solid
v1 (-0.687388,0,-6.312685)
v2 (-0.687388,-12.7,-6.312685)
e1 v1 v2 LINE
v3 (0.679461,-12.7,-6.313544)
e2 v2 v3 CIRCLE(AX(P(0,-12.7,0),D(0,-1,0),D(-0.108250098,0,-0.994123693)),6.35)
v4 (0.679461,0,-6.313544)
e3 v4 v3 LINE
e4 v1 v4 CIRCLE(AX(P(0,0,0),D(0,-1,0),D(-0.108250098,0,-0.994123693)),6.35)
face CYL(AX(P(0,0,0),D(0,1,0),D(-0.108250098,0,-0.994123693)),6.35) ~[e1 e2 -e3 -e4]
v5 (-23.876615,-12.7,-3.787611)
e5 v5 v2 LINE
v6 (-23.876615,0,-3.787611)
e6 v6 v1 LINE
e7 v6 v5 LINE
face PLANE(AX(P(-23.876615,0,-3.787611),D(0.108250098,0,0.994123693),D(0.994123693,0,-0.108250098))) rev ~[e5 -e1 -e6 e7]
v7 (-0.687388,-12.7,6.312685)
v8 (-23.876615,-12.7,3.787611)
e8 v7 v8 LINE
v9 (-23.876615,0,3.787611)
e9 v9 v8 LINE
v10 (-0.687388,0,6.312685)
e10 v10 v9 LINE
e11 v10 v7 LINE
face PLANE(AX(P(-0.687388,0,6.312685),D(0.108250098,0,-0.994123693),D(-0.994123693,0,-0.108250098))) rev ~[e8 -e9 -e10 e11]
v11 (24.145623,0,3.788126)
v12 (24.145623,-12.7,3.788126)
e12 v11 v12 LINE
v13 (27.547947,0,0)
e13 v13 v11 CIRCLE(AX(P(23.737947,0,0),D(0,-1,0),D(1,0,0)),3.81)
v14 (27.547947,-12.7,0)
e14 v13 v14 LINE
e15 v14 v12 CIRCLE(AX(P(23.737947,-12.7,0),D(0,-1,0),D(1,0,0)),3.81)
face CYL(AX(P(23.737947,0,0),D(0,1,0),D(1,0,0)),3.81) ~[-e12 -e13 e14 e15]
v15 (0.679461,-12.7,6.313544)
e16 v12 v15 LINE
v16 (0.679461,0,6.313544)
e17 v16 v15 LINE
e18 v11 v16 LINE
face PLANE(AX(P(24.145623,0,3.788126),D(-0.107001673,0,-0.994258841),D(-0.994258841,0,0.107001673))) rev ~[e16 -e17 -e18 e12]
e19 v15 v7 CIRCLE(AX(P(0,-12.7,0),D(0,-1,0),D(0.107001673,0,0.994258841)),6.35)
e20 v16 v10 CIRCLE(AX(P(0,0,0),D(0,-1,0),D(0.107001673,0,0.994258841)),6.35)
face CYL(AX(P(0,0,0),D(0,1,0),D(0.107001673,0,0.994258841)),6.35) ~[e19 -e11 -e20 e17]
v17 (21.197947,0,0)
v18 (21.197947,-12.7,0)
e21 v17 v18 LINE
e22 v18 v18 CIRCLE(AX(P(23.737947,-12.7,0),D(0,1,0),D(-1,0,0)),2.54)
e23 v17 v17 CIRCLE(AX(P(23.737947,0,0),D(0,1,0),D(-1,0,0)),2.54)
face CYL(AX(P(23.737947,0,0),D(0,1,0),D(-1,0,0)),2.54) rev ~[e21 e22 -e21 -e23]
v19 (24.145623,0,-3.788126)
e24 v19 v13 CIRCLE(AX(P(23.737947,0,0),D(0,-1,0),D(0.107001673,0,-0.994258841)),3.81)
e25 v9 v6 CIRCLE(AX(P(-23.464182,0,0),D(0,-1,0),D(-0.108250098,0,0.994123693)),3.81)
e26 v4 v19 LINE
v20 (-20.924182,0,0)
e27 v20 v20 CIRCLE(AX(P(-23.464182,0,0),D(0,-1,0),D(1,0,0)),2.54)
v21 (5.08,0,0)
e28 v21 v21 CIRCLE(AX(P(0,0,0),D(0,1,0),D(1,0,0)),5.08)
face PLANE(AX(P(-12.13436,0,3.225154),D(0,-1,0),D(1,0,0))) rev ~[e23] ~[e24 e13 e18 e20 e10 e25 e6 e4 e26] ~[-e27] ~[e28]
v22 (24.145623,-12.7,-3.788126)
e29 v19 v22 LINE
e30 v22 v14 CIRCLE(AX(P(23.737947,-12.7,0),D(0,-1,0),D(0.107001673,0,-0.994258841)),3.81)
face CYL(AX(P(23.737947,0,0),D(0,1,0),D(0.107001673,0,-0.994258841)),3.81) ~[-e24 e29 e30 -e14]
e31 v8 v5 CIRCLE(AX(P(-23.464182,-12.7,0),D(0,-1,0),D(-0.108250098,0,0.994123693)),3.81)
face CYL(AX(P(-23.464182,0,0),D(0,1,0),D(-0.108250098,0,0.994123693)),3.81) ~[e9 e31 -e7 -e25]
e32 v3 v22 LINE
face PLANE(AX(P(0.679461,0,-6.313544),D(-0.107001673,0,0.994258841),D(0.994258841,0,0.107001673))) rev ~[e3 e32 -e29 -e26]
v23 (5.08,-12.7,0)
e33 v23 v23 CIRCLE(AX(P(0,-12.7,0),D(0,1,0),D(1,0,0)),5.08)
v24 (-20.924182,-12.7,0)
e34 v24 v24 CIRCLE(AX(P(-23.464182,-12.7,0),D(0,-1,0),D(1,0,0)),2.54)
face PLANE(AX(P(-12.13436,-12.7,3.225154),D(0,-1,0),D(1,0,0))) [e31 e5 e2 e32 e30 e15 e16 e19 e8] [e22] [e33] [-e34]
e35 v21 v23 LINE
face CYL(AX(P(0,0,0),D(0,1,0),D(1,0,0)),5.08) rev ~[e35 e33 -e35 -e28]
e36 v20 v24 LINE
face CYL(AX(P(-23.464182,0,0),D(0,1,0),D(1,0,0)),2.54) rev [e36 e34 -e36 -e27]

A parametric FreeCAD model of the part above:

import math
import FreeCAD as App
import Part
import Sketcher
Q = App.Units.Quantity

doc = App.newDocument("Part")
body = doc.addObject("PartDesign::Body", "Body")

# Sketch on XZ plane
sketch1 = body.newObject("Sketcher::SketchObject", "Sketch")
sketch1.AttachmentSupport = (doc.getObject("XZ_Plane"), [""])
sketch1.MapMode = "FlatFace"
sketch1.addGeometry(Part.LineSegment(App.Vector(-23.9, -3.8, 0), App.Vector(-0.7, -6.3, 0)), False)
sketch1.addGeometry(Part.ArcOfCircle(Part.Circle(App.Vector(0, 0, 0), App.Vector(0, 0, 1), 6.4), math.radians(-96.21), math.radians(-83.86)), False)
sketch1.addGeometry(Part.LineSegment(App.Vector(0.7, -6.3, 0), App.Vector(24.1, -3.8, 0)), False)
sketch1.addGeometry(Part.ArcOfCircle(Part.Circle(App.Vector(23.7, 0, 0), App.Vector(0, 0, 1), 3.8), math.radians(-84), math.radians(0)), False)
sketch1.addGeometry(Part.ArcOfCircle(Part.Circle(App.Vector(23.7, 0, 0), App.Vector(0, 0, 1), 3.8), math.radians(0), math.radians(84)), False)
sketch1.addGeometry(Part.LineSegment(App.Vector(24.1, 3.8, 0), App.Vector(0.7, 6.3, 0)), False)
sketch1.addGeometry(Part.ArcOfCircle(Part.Circle(App.Vector(0, 0, 0), App.Vector(0, 0, 1), 6.4), math.radians(83.86), math.radians(96.21)), False)
sketch1.addGeometry(Part.LineSegment(App.Vector(-0.7, 6.3, 0), App.Vector(-23.9, 3.8, 0)), False)
sketch1.addGeometry(Part.ArcOfCircle(Part.Circle(App.Vector(-23.5, 0, 0), App.Vector(0, 0, 1), 3.8), math.radians(96), math.radians(264)), False)
sketch1.addGeometry(Part.Circle(App.Vector(-23.5, 0, 0), App.Vector(0, 0, 1), 2.5), False)
sketch1.addGeometry(Part.Circle(App.Vector(0, 0, 0), App.Vector(0, 0, 1), 5.1), False)
sketch1.addGeometry(Part.Circle(App.Vector(23.7, 0, 0), App.Vector(0, 0, 1), 2.5), False)
sketch1.addConstraint(Sketcher.Constraint("Tangent", 0, 2, 1, 1))
sketch1.addConstraint(Sketcher.Constraint("Tangent", 1, 2, 2, 1))
sketch1.addConstraint(Sketcher.Constraint("Tangent", 2, 2, 3, 1))
sketch1.addConstraint(Sketcher.Constraint("Tangent", 3, 2, 4, 1))
sketch1.addConstraint(Sketcher.Constraint("Tangent", 4, 2, 5, 1))
sketch1.addConstraint(Sketcher.Constraint("Tangent", 5, 2, 6, 1))
sketch1.addConstraint(Sketcher.Constraint("Tangent", 6, 2, 7, 1))
sketch1.addConstraint(Sketcher.Constraint("Tangent", 7, 2, 8, 1))
sketch1.addConstraint(Sketcher.Constraint("Tangent", 8, 2, 0, 1))
sketch1.addConstraint(Sketcher.Constraint("Coincident", 1, 3, -1, 1))
sketch1.addConstraint(Sketcher.Constraint("Coincident", 6, 3, -1, 1))
sketch1.addConstraint(Sketcher.Constraint("Coincident", 10, 3, -1, 1))
sketch1.addConstraint(Sketcher.Constraint("Coincident", 9, 3, 8, 3))
sketch1.addConstraint(Sketcher.Constraint("Coincident", 11, 3, 3, 3))
sketch1.addConstraint(Sketcher.Constraint("Equal", 3, 4))
sketch1.addConstraint(Sketcher.Constraint("Equal", 1, 6))
sketch1.addConstraint(Sketcher.Constraint("Equal", 4, 8))
sketch1.addConstraint(Sketcher.Constraint("Equal", 9, 11))
sketch1.addConstraint(Sketcher.Constraint("PointOnObject", 3, 3, -1))
sketch1.addConstraint(Sketcher.Constraint("PointOnObject", 8, 3, -1))
sketch1.addConstraint(Sketcher.Constraint("PointOnObject", 3, 2, -1))
sketch1.addConstraint(Sketcher.Constraint("Diameter", 9, Q("0.2 in")))
sketch1.addConstraint(Sketcher.Constraint("Diameter", 10, Q("0.4 in")))
sketch1.addConstraint(Sketcher.Constraint("Radius", 1, Q("0.25 in")))
sketch1.addConstraint(Sketcher.Constraint("Radius", 3, Q("0.15 in")))
sketch1.addConstraint(Sketcher.Constraint("Distance", 0, Q("23.326299 mm")))
sketch1.addConstraint(Sketcher.Constraint("DistanceX", -1, 1, 1, 2, Q("0.679461 mm")))
pad1 = body.newObject("PartDesign::Pad", "Pad")
pad1.Profile = sketch1
pad1.Length = Q("0.5 in")

doc.recompute()
